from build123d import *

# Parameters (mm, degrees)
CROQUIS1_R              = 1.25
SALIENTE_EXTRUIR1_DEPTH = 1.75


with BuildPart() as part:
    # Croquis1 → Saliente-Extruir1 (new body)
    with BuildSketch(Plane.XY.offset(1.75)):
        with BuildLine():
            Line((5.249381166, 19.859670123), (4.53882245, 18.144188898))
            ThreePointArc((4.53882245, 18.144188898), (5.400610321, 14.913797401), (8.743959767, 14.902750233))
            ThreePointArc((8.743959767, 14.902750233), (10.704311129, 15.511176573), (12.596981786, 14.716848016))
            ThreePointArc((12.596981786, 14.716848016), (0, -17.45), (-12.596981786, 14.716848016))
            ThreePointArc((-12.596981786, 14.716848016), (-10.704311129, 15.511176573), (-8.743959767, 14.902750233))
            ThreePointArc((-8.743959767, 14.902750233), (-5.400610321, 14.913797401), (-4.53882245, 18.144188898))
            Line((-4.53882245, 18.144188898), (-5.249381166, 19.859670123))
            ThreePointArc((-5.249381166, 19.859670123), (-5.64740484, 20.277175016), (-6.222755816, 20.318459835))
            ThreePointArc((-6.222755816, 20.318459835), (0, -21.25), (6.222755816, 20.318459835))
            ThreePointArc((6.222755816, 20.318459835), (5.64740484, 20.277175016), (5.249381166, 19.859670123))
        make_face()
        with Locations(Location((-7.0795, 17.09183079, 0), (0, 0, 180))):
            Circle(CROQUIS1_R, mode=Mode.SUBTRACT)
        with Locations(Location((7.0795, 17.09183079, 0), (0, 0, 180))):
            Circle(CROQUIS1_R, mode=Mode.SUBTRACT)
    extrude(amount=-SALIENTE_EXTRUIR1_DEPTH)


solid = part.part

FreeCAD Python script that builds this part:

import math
import FreeCAD as App
import Part
import Sketcher

V = App.Vector
Q = App.Units.Quantity

doc = App.newDocument("Part")
body = doc.addObject("PartDesign::Body", "Body")

sketch1 = body.newObject("Sketcher::SketchObject", "Sketch")
sketch1.AttachmentSupport = (doc.getObject("XY_Plane"), [""])
sketch1.MapMode = "FlatFace"
sketch1.AttachmentOffset = App.Placement(V(0, 0, 1.75), App.Rotation())
sketch1.addGeometry(Part.LineSegment(V(5.2, 19.9, 0), V(4.5, 18.1, 0)), False)
sketch1.addGeometry(Part.ArcOfCircle(Part.Circle(V(7.1, 17.1, 0), V(0, 0, 1), 2.8), math.radians(158), math.radians(307)), False)
sketch1.addGeometry(Part.ArcOfCircle(Part.Circle(V(10.6, 12.5, 0), V(0, 0, 1), 3), math.radians(47), math.radians(127)), False)
sketch1.addGeometry(Part.ArcOfCircle(Part.Circle(V(0, 1.1, 0), V(0, 0, 1), 18.6), math.radians(133), math.radians(407)), False)
sketch1.addGeometry(Part.ArcOfCircle(Part.Circle(V(-10.6, 12.5, 0), V(0, 0, 1), 3), math.radians(53), math.radians(133)), False)
sketch1.addGeometry(Part.ArcOfCircle(Part.Circle(V(-7.1, 17.1, 0), V(0, 0, 1), 2.8), math.radians(-127), math.radians(22)), False)
sketch1.addGeometry(Part.LineSegment(V(-4.5, 18.1, 0), V(-5.2, 19.9, 0)), False)
sketch1.addGeometry(Part.ArcOfCircle(Part.Circle(V(-6, 19.6, 0), V(0, 0, 1), 0.8), math.radians(22), math.radians(107)), False)
sketch1.addGeometry(Part.ArcOfCircle(Part.Circle(V(0, 0, 0), V(0, 0, 1), 21.2), math.radians(107), math.radians(433)), False)
sketch1.addGeometry(Part.ArcOfCircle(Part.Circle(V(6, 19.6, 0), V(0, 0, 1), 0.8), math.radians(73), math.radians(158)), False)
sketch1.addGeometry(Part.Circle(V(-7.1, 17.1, 0), V(0, 0, 1), 1.2), False)
sketch1.addGeometry(Part.Circle(V(7.1, 17.1, 0), V(0, 0, 1), 1.2), False)
sketch1.addConstraint(Sketcher.Constraint("Tangent", 0, 2, 1, 1))
sketch1.addConstraint(Sketcher.Constraint("Tangent", 1, 2, 2, 2))
sketch1.addConstraint(Sketcher.Constraint("Tangent", 2, 1, 3, 2))
sketch1.addConstraint(Sketcher.Constraint("Tangent", 3, 1, 4, 2))
sketch1.addConstraint(Sketcher.Constraint("Tangent", 4, 1, 5, 1))
sketch1.addConstraint(Sketcher.Constraint("Tangent", 5, 2, 6, 1))
sketch1.addConstraint(Sketcher.Constraint("Tangent", 6, 2, 7, 1))
sketch1.addConstraint(Sketcher.Constraint("Tangent", 7, 2, 8, 1))
sketch1.addConstraint(Sketcher.Constraint("Tangent", 8, 2, 9, 1))
sketch1.addConstraint(Sketcher.Constraint("Tangent", 9, 2, 0, 1))
sketch1.addConstraint(Sketcher.Constraint("Coincident", 8, 3, -1, 1))
sketch1.addConstraint(Sketcher.Constraint("Coincident", 10, 3, 5, 3))
sketch1.addConstraint(Sketcher.Constraint("Coincident", 11, 3, 1, 3))
sketch1.addConstraint(Sketcher.Constraint("Equal", 2, 4))
sketch1.addConstraint(Sketcher.Constraint("Equal", 1, 5))
sketch1.addConstraint(Sketcher.Constraint("Equal", 7, 9))
sketch1.addConstraint(Sketcher.Constraint("Equal", 10, 11))
sketch1.addConstraint(Sketcher.Constraint("Symmetric", 2, 3, 4, 3, -2))
sketch1.addConstraint(Sketcher.Constraint("Symmetric", 0, 2, 5, 2, -2))
sketch1.addConstraint(Sketcher.Constraint("Radius", 2, Q("3 mm")))
sketch1.addConstraint(Sketcher.Constraint("Diameter", 10, Q("2.5 mm")))
sketch1.addConstraint(Sketcher.Constraint("Radius", 7, Q("0.8 mm")))
sketch1.addConstraint(Sketcher.Constraint("Radius", 1, Q("2.75 mm")))
sketch1.addConstraint(Sketcher.Constraint("Radius", 3, Q("18.55 mm")))
sketch1.addConstraint(Sketcher.Constraint("Radius", 8, Q("21.25 mm")))
sketch1.addConstraint(Sketcher.Constraint("DistanceY", -1, 1, 3, 3, Q("1.1 mm")))
sketch1.addConstraint(Sketcher.Constraint("DistanceX", 5, 3, 1, 3, Q("14.159 mm")))
sketch1.addConstraint(Sketcher.Constraint("DistanceY", 5, 3, 7, 3, Q("2.461699 mm")))
sketch1.addConstraint(Sketcher.Constraint("DistanceY", -1, 1, 1, 3, Q("17.091831 mm")))
pad1 = body.newObject("PartDesign::Pad", "Pad")
pad1.Profile = sketch1
pad1.Length = 1.75
pad1.Reversed = True

doc.recompute()
